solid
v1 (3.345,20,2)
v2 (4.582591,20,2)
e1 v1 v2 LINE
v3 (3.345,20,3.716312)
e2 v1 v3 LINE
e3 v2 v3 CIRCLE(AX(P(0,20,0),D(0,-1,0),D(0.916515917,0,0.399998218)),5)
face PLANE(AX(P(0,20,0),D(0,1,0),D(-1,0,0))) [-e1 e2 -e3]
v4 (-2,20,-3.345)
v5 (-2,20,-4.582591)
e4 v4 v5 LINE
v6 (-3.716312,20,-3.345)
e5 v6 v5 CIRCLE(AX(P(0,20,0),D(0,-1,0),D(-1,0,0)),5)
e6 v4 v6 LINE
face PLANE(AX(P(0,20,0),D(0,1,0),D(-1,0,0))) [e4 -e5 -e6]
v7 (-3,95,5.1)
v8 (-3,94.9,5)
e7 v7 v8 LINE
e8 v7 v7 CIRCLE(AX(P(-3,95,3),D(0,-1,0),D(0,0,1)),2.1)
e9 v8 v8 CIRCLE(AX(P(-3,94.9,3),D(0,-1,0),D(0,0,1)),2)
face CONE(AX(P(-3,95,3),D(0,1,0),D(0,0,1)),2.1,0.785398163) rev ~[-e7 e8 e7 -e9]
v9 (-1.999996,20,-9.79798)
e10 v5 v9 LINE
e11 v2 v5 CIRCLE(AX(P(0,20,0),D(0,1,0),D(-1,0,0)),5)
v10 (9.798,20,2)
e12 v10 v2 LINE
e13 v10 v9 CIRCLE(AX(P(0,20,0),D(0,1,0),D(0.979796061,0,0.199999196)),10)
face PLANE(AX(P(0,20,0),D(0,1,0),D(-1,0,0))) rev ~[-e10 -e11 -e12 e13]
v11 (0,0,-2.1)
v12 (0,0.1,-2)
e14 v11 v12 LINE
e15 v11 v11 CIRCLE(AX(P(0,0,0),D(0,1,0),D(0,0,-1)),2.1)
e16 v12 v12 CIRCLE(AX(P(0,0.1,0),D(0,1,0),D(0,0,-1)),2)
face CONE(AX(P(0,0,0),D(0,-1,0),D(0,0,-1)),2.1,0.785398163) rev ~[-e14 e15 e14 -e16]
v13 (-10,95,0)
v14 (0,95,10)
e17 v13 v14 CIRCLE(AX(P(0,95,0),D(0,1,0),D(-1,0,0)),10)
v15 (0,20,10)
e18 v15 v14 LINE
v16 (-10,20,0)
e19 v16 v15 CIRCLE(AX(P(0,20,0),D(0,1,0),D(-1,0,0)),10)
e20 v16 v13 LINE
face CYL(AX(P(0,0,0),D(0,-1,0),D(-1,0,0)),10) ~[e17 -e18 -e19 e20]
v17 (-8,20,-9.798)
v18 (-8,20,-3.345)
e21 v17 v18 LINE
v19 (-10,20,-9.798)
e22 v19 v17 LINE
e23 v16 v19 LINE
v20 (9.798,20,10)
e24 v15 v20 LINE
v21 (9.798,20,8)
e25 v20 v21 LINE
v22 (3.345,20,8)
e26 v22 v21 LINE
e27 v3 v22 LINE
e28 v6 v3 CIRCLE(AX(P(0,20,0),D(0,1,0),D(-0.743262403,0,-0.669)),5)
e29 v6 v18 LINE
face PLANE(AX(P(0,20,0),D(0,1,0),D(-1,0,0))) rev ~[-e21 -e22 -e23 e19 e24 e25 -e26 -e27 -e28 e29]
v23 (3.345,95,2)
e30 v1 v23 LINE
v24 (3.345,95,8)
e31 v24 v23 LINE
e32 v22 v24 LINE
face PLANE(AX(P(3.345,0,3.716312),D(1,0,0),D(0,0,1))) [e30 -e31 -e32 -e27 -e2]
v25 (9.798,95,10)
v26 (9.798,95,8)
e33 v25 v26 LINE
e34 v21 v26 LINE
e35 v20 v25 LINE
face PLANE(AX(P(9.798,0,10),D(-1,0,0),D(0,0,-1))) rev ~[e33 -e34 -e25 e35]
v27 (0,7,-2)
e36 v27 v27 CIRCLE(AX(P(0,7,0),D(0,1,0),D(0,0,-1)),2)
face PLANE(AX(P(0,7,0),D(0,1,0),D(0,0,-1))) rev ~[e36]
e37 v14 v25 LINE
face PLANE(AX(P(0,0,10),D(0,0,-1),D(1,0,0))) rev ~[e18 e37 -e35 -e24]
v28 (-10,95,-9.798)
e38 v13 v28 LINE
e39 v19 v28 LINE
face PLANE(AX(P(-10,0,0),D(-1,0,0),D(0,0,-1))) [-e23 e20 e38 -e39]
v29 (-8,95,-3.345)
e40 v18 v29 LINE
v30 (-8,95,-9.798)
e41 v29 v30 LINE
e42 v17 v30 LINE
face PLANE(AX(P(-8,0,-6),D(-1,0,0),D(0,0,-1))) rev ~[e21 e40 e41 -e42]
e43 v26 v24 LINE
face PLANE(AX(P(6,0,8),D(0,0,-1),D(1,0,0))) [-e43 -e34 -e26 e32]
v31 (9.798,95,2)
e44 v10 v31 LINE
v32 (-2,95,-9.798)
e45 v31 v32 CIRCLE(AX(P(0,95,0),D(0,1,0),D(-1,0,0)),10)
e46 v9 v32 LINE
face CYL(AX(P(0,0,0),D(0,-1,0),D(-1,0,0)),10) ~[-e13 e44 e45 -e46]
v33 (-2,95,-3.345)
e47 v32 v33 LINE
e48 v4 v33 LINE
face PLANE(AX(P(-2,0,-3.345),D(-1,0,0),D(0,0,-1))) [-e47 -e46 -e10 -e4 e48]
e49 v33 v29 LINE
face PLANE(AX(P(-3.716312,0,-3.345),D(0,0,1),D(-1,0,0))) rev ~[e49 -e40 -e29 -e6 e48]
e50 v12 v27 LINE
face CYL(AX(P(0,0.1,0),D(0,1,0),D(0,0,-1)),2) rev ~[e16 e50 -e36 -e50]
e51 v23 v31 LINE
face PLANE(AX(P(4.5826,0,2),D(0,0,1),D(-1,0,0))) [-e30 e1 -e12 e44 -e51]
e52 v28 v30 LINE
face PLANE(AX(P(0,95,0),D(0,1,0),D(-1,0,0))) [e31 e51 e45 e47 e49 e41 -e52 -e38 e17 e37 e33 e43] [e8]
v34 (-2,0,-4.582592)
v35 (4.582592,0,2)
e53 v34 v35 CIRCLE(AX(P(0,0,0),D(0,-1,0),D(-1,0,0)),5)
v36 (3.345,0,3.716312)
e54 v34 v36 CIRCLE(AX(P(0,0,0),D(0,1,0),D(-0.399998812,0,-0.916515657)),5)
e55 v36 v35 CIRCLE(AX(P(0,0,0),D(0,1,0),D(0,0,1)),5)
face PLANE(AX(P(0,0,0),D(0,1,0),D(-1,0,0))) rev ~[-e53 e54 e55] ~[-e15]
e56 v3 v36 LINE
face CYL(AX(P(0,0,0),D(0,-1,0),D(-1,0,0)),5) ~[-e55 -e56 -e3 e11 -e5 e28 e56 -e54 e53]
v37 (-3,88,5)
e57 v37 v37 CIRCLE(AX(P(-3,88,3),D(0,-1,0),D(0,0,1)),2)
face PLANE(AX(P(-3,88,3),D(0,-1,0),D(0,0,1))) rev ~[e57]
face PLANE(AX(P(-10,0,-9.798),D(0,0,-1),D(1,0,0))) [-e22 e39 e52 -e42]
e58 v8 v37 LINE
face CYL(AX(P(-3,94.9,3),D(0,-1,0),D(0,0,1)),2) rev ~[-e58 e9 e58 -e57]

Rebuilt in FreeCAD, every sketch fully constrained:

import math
import FreeCAD as App
import Part
import Sketcher
Q = App.Units.Quantity

doc = App.newDocument("Part")
body = doc.addObject("PartDesign::Body", "Body")

sketch1 = doc.addObject("Sketcher::SketchObject", "Sketch")
body.addObject(sketch1)
sketch1.AttachmentSupport = (doc.XZ_Plane, [""])
sketch1.MapMode = "FlatFace"
sketch1.addGeometry([
    Part.ArcOfCircle(Part.Circle(App.Vector(0, 0, 0), App.Vector(0, 0, 1), 10), math.radians(90), math.radians(180)),
    Part.LineSegment(App.Vector(0, 10, 0), App.Vector(9.8, 10, 0)),
    Part.LineSegment(App.Vector(9.8, 10, 0), App.Vector(9.8, 8, 0)),
    Part.LineSegment(App.Vector(9.8, 8, 0), App.Vector(3.3, 8, 0)),
    Part.LineSegment(App.Vector(3.3, 8, 0), App.Vector(3.3, 2, 0)),
    Part.LineSegment(App.Vector(3.3, 2, 0), App.Vector(9.8, 2, 0)),
    Part.ArcOfCircle(Part.Circle(App.Vector(0, 0, 0), App.Vector(0, 0, 1), 10), math.radians(-102), math.radians(12)),
    Part.LineSegment(App.Vector(-2, -9.8, 0), App.Vector(-2, -3.3, 0)),
    Part.LineSegment(App.Vector(-2, -3.3, 0), App.Vector(-8, -3.3, 0)),
    Part.LineSegment(App.Vector(-8, -3.3, 0), App.Vector(-8, -9.8, 0)),
    Part.LineSegment(App.Vector(-8, -9.8, 0), App.Vector(-10, -9.8, 0)),
    Part.LineSegment(App.Vector(-10, -9.8, 0), App.Vector(-10, 0, 0)),
], False)
sketch1.addConstraint([
    Sketcher.Constraint("Tangent", 0, 1, 1, 1),
    Sketcher.Constraint("Coincident", 1, 2, 2, 1),
    Sketcher.Constraint("Coincident", 2, 2, 3, 1),
    Sketcher.Constraint("Coincident", 3, 2, 4, 1),
    Sketcher.Constraint("Coincident", 4, 2, 5, 1),
    Sketcher.Constraint("Coincident", 5, 2, 6, 2),
    Sketcher.Constraint("Coincident", 6, 1, 7, 1),
    Sketcher.Constraint("Coincident", 7, 2, 8, 1),
    Sketcher.Constraint("Coincident", 8, 2, 9, 1),
    Sketcher.Constraint("Coincident", 9, 2, 10, 1),
    Sketcher.Constraint("Coincident", 10, 2, 11, 1),
    Sketcher.Constraint("Tangent", 11, 2, 0, 2),
    Sketcher.Constraint("Horizontal", 1),
    Sketcher.Constraint("Vertical", 2),
    Sketcher.Constraint("Horizontal", 3),
    Sketcher.Constraint("Vertical", 4),
    Sketcher.Constraint("Horizontal", 5),
    Sketcher.Constraint("Vertical", 7),
    Sketcher.Constraint("Horizontal", 8),
    Sketcher.Constraint("Vertical", 9),
    Sketcher.Constraint("Horizontal", 10),
    Sketcher.Constraint("Vertical", 11),
    Sketcher.Constraint("Coincident", 0, 3, -1, 1),
    Sketcher.Constraint("Coincident", 6, 3, -1, 1),
    Sketcher.Constraint("Equal", 0, 6),
    Sketcher.Constraint("Horizontal", 6, 1, 9, 2),
    Sketcher.Constraint("Vertical", 2, 2, 5, 2),
    Sketcher.Constraint("Equal", 10, 2),
    Sketcher.Constraint("Equal", 8, 4),
    Sketcher.Constraint("Equal", 5, 7),
    Sketcher.Constraint("Radius", 0, Q("10 mm")),
    Sketcher.Constraint("DistanceX", 8, 2, 8, 1, Q("6 mm")),
    Sketcher.Constraint("DistanceX", 10, 2, 10, 1, Q("2 mm")),
    Sketcher.Constraint("DistanceX", -1, 1, 3, 2, Q("3.345 mm")),
])
pad1 = doc.addObject("PartDesign::Pad", "Pad")
body.addObject(pad1)
pad1.Profile = sketch1
pad1.Length = 95
pad1.Reversed = True

sketch2 = doc.addObject("Sketcher::SketchObject", "Sketch001")
body.addObject(sketch2)
sketch2.AttachmentSupport = (doc.XZ_Plane, [""])
sketch2.MapMode = "FlatFace"
sketch2.addGeometry([
    Part.ArcOfCircle(Part.Circle(App.Vector(0, 0, 0), App.Vector(0, 0, 1), 10), math.radians(90), math.radians(180)),
    Part.LineSegment(App.Vector(0, 10, 0), App.Vector(9.8, 10, 0)),
    Part.LineSegment(App.Vector(9.8, 10, 0), App.Vector(9.8, 2, 0)),
    Part.ArcOfCircle(Part.Circle(App.Vector(0, 0, 0), App.Vector(0, 0, 1), 10), math.radians(-143), math.radians(12)),
    Part.LineSegment(App.Vector(-8, -6, 0), App.Vector(-8, -9.8, 0)),
    Part.LineSegment(App.Vector(-8, -9.8, 0), App.Vector(-10, -9.8, 0)),
    Part.LineSegment(App.Vector(-10, -9.8, 0), App.Vector(-10, 0, 0)),
    Part.Circle(App.Vector(0, 0, 0), App.Vector(0, 0, 1), 5),
], False)
sketch2.addConstraint([
    Sketcher.Constraint("Tangent", 0, 1, 1, 1),
    Sketcher.Constraint("Coincident", 1, 2, 2, 1),
    Sketcher.Constraint("Coincident", 2, 2, 3, 2),
    Sketcher.Constraint("Coincident", 3, 1, 4, 1),
    Sketcher.Constraint("Coincident", 4, 2, 5, 1),
    Sketcher.Constraint("Coincident", 5, 2, 6, 1),
    Sketcher.Constraint("Tangent", 6, 2, 0, 2),
    Sketcher.Constraint("Horizontal", 1),
    Sketcher.Constraint("Vertical", 2),
    Sketcher.Constraint("Vertical", 4),
    Sketcher.Constraint("Horizontal", 5),
    Sketcher.Constraint("Vertical", 6),
    Sketcher.Constraint("Coincident", 0, 3, -1, 1),
    Sketcher.Constraint("Coincident", 3, 3, -1, 1),
    Sketcher.Constraint("Coincident", 7, 3, -1, 1),
    Sketcher.Constraint("Equal", 0, 3),
    Sketcher.Constraint("Equal", 1, 6),
    Sketcher.Constraint("Diameter", 7, Q("10 mm")),
    Sketcher.Constraint("Radius", 0, Q("10 mm")),
    Sketcher.Constraint("DistanceX", 5, 2, 5, 1, Q("2 mm")),
    Sketcher.Constraint("DistanceY", -1, 1, 2, 2, Q("2 mm")),
])
pocket1 = doc.addObject("PartDesign::Pocket", "Pocket")
body.addObject(pocket1)
pocket1.Profile = sketch2
pocket1.Length = 20

sketch3 = doc.addObject("Sketcher::SketchObject", "Sketch002")
body.addObject(sketch3)
sketch3.AttachmentSupport = (doc.XZ_Plane, [""])
sketch3.MapMode = "FlatFace"
sketch3.addGeometry([
    Part.LineSegment(App.Vector(-5, 0, 0), App.Vector(-2, 0, 0)),
    Part.LineSegment(App.Vector(-2, 0, 0), App.Vector(-2, -4.6, 0)),
    Part.ArcOfCircle(Part.Circle(App.Vector(0, 0, 0), App.Vector(0, 0, 1), 5), math.radians(180), math.radians(246)),
    Part.LineSegment(App.Vector(0, 2, 0), App.Vector(0, 5, 0)),
    Part.ArcOfCircle(Part.Circle(App.Vector(0, 0, 0), App.Vector(0, 0, 1), 5), math.radians(24), math.radians(90)),
    Part.LineSegment(App.Vector(4.6, 2, 0), App.Vector(0, 2, 0)),
], False)
sketch3.addConstraint([
    Sketcher.Constraint("Coincident", 0, 2, 1, 1),
    Sketcher.Constraint("Coincident", 1, 2, 2, 2),
    Sketcher.Constraint("Coincident", 2, 1, 0, 1),
    Sketcher.Constraint("Coincident", 3, 2, 4, 2),
    Sketcher.Constraint("Coincident", 4, 1, 5, 1),
    Sketcher.Constraint("Coincident", 5, 2, 3, 1),
    Sketcher.Constraint("Horizontal", 0),
    Sketcher.Constraint("Vertical", 1),
    Sketcher.Constraint("Vertical", 3),
    Sketcher.Constraint("Horizontal", 5),
    Sketcher.Constraint("Coincident", 2, 3, -1, 1),
    Sketcher.Constraint("Coincident", 4, 3, -1, 1),
    Sketcher.Constraint("Equal", 2, 4),
    Sketcher.Constraint("PointOnObject", 0, 2, -1),
    Sketcher.Constraint("PointOnObject", 3, 2, -2),
    Sketcher.Constraint("Equal", 5, 1),
    Sketcher.Constraint("Radius", 2, Q("5 mm")),
    Sketcher.Constraint("DistanceX", 0, 2, -1, 1, Q("2 mm")),
])
pad2 = doc.addObject("PartDesign::Pad", "Pad001")
body.addObject(pad2)
pad2.Profile = sketch3
pad2.Length = 20
pad2.Reversed = True

sketch4 = doc.addObject("Sketcher::SketchObject", "Sketch003")
body.addObject(sketch4)
sketch4.AttachmentSupport = (doc.XZ_Plane, [""])
sketch4.MapMode = "FlatFace"
sketch4.AttachmentOffset = App.Placement(App.Vector(0, 0, -95), App.Rotation())
sketch4.addGeometry(Part.Circle(App.Vector(-3, 3, 0), App.Vector(0, 0, 1), 2), False)
sketch4.addConstraint([
    Sketcher.Constraint("Diameter", 0, Q("4 mm")),
    Sketcher.Constraint("DistanceX", 0, 3, -1, 1, Q("3 mm")),
    Sketcher.Constraint("DistanceY", -1, 1, 0, 3, Q("3 mm")),
])
doc.recompute()
hole = doc.addObject("PartDesign::Hole", "Hole")
body.addObject(hole)
hole.Profile = sketch4
hole.ThreadType = "None"
hole.Diameter = 4
hole.DepthType = "Dimension"
hole.Depth = 7
hole.DrillPoint = "Flat"
hole.HoleCutType = "Countersink"
hole.HoleCutDiameter = 4.2
hole.HoleCutCountersinkAngle = 90
hole.Reversed = True

sketch5 = doc.addObject("Sketcher::SketchObject", "Sketch004")
body.addObject(sketch5)
sketch5.AttachmentSupport = (doc.XZ_Plane, [""])
sketch5.MapMode = "FlatFace"
sketch5.addGeometry(Part.Circle(App.Vector(0, 0, 0), App.Vector(0, 0, 1), 2), False)
sketch5.addConstraint([
    Sketcher.Constraint("Coincident", 0, 3, -1, 1),
    Sketcher.Constraint("Diameter", 0, Q("4 mm")),
])
doc.recompute()
hole2 = doc.addObject("PartDesign::Hole", "Hole001")
body.addObject(hole2)
hole2.Profile = sketch5
hole2.ThreadType = "None"
hole2.Diameter = 4
hole2.DepthType = "Dimension"
hole2.Depth = 7
hole2.DrillPoint = "Flat"
hole2.HoleCutType = "Countersink"
hole2.HoleCutDiameter = 4.2
hole2.HoleCutCountersinkAngle = 90

doc.recompute()
